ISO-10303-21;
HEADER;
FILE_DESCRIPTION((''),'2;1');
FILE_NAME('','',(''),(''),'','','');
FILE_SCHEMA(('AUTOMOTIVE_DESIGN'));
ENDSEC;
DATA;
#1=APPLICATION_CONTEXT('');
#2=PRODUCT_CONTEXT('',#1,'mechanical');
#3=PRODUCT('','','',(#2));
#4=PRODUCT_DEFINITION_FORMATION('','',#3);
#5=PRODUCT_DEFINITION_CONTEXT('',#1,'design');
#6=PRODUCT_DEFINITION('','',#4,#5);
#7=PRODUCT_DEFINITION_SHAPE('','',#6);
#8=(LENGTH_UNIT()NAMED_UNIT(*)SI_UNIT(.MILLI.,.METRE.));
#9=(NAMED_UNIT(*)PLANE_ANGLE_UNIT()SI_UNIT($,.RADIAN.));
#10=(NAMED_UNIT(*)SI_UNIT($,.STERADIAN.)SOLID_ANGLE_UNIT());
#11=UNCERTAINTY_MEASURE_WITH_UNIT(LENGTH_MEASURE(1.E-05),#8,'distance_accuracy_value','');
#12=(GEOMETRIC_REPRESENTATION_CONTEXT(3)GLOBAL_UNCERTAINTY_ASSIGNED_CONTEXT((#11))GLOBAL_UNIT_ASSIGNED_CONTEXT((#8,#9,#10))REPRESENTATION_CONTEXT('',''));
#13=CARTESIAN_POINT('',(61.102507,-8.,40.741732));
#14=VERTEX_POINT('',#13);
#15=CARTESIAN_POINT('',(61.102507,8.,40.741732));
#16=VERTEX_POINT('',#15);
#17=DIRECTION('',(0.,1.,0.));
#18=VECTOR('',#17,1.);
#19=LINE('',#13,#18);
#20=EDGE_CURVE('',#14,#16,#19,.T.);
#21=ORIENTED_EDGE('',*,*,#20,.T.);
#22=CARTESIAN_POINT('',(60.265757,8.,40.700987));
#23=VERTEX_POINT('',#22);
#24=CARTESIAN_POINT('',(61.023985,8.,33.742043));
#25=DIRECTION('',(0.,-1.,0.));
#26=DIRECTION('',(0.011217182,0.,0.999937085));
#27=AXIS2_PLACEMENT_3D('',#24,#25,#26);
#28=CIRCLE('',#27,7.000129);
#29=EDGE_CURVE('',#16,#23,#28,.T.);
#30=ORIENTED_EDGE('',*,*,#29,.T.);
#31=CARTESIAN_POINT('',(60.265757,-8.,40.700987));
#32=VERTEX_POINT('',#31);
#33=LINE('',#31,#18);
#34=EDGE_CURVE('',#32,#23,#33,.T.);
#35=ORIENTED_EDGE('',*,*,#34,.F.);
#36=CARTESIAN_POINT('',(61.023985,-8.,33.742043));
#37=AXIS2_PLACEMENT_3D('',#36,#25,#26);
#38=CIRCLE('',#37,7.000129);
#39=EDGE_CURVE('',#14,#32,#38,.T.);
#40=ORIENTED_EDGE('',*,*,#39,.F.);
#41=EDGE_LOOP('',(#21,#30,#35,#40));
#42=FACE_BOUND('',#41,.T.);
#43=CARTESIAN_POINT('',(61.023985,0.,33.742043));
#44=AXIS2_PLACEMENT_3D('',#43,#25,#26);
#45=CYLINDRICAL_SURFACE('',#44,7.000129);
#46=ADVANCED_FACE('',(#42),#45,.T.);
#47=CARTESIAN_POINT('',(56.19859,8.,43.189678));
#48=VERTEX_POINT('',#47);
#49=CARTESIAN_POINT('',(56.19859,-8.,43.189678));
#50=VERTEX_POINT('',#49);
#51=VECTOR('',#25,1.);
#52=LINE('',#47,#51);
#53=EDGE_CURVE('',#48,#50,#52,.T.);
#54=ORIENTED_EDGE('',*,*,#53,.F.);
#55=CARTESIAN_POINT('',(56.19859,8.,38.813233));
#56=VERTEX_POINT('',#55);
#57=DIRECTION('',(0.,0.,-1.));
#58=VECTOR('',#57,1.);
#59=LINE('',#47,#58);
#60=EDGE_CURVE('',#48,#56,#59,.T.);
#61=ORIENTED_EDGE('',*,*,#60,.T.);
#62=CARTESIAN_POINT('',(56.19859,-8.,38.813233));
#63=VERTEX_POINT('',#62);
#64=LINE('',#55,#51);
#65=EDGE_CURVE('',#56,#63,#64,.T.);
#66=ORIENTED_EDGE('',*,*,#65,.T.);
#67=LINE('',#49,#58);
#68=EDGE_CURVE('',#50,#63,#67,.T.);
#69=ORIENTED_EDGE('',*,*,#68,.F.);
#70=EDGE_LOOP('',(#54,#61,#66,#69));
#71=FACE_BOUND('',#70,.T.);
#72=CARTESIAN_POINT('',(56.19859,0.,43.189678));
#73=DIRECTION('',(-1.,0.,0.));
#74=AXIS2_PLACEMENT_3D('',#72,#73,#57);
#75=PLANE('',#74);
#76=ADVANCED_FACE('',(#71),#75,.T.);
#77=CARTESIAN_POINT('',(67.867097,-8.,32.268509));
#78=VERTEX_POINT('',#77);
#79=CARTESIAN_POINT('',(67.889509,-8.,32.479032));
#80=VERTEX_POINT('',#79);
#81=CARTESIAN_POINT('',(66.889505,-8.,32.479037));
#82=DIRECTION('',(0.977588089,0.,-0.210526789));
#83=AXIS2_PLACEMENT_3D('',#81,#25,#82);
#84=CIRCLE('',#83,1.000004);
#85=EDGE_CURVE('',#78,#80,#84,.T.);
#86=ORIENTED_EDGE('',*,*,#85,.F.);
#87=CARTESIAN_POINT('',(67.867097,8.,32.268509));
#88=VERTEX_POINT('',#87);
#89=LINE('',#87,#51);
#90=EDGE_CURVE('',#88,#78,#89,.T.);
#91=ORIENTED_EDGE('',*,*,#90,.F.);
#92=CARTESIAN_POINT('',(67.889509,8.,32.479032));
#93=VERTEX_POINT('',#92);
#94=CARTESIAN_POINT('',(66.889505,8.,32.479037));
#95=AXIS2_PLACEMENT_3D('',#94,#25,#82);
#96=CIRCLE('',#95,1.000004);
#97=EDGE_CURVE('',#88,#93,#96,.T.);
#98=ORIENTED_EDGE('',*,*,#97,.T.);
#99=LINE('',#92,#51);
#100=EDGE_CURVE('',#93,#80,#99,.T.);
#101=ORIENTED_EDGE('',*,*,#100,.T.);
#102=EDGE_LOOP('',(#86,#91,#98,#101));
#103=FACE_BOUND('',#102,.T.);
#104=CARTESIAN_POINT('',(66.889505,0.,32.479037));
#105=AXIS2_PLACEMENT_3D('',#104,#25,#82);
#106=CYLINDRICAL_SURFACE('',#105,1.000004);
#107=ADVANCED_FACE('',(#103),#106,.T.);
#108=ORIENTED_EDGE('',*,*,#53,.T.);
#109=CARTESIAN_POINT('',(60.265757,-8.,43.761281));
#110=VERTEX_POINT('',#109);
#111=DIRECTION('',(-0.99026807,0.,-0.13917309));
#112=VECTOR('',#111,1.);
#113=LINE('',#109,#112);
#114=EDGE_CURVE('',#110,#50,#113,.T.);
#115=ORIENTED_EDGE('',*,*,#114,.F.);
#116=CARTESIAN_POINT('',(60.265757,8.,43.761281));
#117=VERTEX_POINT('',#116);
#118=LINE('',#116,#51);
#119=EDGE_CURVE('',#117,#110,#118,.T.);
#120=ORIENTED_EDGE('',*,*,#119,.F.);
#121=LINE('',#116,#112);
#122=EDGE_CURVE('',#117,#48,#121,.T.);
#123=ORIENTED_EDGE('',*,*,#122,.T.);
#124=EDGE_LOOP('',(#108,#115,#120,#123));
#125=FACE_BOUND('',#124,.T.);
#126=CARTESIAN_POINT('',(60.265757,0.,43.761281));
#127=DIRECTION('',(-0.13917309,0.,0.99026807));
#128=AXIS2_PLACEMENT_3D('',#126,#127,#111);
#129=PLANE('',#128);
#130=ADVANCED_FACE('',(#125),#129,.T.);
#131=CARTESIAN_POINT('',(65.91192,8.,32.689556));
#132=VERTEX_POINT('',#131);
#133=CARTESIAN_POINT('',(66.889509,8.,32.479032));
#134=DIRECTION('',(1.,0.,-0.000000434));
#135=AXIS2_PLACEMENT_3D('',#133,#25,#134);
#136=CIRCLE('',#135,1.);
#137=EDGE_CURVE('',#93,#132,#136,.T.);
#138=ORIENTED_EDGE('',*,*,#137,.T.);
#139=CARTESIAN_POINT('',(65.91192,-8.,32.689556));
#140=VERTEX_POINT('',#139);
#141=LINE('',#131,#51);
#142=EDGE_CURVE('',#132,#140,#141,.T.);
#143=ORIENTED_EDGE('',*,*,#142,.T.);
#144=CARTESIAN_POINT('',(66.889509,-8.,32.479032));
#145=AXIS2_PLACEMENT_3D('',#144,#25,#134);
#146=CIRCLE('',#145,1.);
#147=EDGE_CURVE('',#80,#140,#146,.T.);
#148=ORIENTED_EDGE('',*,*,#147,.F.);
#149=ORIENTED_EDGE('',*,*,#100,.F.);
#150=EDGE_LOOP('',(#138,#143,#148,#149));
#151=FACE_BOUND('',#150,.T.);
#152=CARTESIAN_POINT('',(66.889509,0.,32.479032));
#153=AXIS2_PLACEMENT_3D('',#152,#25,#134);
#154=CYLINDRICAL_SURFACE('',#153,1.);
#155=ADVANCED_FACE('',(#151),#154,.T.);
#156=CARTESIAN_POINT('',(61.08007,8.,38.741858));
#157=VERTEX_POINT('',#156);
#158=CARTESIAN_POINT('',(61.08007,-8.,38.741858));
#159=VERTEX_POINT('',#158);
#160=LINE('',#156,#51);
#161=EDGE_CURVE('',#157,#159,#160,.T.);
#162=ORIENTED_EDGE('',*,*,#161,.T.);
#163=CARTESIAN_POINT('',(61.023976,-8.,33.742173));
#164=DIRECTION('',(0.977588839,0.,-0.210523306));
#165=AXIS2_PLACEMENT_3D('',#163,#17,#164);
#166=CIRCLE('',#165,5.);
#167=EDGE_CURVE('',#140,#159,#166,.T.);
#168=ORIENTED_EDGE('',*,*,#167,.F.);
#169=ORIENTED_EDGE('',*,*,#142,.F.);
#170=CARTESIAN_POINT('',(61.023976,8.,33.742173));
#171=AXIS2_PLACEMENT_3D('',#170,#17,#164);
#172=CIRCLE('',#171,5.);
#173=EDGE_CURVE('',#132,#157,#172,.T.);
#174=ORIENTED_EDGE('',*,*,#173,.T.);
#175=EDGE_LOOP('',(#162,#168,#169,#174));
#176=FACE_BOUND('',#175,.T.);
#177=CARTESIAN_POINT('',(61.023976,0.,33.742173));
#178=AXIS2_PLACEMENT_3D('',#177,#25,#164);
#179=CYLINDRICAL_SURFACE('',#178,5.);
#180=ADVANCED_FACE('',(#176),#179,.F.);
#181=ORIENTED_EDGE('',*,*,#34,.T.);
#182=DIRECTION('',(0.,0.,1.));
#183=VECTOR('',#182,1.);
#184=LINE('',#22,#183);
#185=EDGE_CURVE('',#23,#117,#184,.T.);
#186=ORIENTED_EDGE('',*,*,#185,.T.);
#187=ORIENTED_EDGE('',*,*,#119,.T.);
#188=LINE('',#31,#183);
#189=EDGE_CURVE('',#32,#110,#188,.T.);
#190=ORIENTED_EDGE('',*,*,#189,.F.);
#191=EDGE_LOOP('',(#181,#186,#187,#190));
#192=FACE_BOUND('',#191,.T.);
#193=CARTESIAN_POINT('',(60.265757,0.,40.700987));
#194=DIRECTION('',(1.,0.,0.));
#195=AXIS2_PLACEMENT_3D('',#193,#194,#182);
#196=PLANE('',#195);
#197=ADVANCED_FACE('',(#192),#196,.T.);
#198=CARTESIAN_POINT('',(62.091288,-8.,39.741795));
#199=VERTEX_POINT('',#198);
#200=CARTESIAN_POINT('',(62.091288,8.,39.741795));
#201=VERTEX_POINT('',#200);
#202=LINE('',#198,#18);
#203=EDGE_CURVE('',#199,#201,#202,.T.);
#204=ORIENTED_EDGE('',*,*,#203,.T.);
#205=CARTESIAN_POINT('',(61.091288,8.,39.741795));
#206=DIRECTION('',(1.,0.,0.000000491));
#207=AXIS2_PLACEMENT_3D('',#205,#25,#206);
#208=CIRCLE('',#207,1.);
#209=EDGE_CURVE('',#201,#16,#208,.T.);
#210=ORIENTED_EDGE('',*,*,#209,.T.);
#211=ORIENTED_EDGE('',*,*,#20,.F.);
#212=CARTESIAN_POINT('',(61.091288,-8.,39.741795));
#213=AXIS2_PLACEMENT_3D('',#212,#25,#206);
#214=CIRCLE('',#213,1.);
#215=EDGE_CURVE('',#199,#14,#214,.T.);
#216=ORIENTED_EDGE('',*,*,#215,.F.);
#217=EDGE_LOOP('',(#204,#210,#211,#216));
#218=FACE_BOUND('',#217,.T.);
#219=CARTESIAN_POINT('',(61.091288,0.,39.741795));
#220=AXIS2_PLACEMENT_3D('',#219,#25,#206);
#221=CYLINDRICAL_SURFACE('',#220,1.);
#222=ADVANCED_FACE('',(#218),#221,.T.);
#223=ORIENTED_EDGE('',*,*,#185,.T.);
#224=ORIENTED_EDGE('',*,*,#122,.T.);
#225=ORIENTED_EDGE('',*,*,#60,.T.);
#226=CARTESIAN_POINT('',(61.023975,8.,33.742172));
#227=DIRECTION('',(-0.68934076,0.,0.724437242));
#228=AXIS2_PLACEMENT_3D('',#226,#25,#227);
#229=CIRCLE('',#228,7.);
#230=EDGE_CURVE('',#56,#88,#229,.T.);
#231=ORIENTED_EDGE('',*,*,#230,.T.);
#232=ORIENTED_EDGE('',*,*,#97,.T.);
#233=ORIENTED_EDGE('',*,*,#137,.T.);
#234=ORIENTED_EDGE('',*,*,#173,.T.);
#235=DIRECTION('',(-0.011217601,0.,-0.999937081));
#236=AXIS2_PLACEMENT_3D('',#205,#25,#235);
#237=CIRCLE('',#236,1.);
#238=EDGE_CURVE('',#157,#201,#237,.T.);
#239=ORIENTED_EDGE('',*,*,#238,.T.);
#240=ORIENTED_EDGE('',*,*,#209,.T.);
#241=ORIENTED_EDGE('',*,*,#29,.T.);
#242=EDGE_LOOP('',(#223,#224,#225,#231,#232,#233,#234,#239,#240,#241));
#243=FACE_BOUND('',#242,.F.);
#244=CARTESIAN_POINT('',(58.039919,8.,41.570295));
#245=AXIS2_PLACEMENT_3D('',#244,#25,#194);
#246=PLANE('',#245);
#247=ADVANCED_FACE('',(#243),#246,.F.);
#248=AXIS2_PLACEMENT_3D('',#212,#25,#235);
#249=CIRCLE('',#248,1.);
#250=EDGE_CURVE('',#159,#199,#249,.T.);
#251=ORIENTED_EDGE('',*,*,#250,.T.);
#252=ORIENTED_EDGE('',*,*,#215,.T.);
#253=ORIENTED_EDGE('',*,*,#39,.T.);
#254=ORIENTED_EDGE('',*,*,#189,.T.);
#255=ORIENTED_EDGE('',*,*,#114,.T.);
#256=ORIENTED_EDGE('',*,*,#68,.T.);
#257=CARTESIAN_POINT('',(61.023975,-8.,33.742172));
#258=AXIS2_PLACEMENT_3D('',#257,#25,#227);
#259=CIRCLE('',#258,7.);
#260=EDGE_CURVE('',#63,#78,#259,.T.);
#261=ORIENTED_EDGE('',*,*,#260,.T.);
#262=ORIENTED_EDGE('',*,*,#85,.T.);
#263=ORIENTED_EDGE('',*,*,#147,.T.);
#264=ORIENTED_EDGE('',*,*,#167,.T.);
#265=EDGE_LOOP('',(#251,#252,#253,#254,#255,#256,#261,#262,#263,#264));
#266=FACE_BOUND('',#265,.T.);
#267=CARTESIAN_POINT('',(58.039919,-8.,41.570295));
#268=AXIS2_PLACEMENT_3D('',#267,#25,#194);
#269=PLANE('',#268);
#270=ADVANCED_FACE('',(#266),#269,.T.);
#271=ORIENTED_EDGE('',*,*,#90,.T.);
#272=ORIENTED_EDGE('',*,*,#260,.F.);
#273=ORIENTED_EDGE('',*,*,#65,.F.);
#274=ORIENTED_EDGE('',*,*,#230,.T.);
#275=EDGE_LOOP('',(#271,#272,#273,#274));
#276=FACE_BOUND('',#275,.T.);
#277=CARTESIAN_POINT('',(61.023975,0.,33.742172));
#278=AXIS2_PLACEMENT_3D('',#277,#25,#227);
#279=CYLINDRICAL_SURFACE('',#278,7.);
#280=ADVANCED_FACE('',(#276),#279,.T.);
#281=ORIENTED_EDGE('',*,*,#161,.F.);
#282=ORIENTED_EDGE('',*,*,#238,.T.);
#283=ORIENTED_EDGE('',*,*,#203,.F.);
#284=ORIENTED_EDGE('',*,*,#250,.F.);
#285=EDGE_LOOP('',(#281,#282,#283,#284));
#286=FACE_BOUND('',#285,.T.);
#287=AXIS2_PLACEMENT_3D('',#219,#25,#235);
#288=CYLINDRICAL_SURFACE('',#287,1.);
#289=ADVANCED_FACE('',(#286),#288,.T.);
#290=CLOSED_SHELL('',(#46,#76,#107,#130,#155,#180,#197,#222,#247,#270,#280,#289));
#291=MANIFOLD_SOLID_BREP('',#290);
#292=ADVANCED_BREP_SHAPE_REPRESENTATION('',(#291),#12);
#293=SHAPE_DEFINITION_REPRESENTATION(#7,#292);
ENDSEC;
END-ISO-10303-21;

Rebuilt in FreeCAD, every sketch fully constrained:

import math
import FreeCAD as App
import Part
import Sketcher

V = App.Vector

doc = App.newDocument("Part")
body = doc.addObject("PartDesign::Body", "Body")

sketch1 = body.newObject("Sketcher::SketchObject", "Sketch")
sketch1.AttachmentSupport = (doc.getObject("XZ_Plane"), [""])
sketch1.MapMode = "FlatFace"
sketch1.addGeometry(Part.LineSegment(V(60.265757, 40.700987, 0), V(60.265757, 43.761281, 0)), False)
sketch1.addGeometry(Part.LineSegment(V(60.265757, 43.761281, 0), V(56.19859, 43.189678, 0)), False)
sketch1.addGeometry(Part.LineSegment(V(56.19859, 43.189678, 0), V(56.19859, 38.813233, 0)), False)
sketch1.addGeometry(Part.ArcOfCircle(Part.Circle(V(61.023975, 33.742172, 0), V(0, 0, 1), 7), math.radians(133.577947), math.radians(347.846977)), False)
sketch1.addGeometry(Part.ArcOfCircle(Part.Circle(V(66.889505, 32.479037, 0), V(0, 0, 1), 1.000004), math.radians(-12.153225), math.radians(-0.000265)), False)
sketch1.addGeometry(Part.ArcOfCircle(Part.Circle(V(66.889509, 32.479032, 0), V(0, 0, 1), 1), math.radians(-0.000025), math.radians(167.846965)), False)
sketch1.addGeometry(Part.ArcOfCircle(Part.Circle(V(61.023976, 33.742173, 0), V(0, 0, 1), 5), math.radians(89.357193), math.radians(347.846979)), False)
sketch1.addGeometry(Part.ArcOfCircle(Part.Circle(V(61.091288, 39.741795, 0), V(0, 0, 1), 1), math.radians(-90.642735), math.radians(-0.000027)), False)
sketch1.addGeometry(Part.ArcOfCircle(Part.Circle(V(61.091288, 39.741795, 0), V(0, 0, 1), 1), math.radians(0.000028), math.radians(89.357161)), False)
sketch1.addGeometry(Part.ArcOfCircle(Part.Circle(V(61.023985, 33.742043, 0), V(0, 0, 1), 7.000129), math.radians(89.357289), math.radians(96.218268)), False)
sketch1.addConstraint(Sketcher.Constraint("Coincident", 0, 2, 1, 1))
sketch1.addConstraint(Sketcher.Constraint("Coincident", 1, 2, 2, 1))
sketch1.addConstraint(Sketcher.Constraint("Coincident", 2, 2, 3, 1))
sketch1.addConstraint(Sketcher.Constraint("Coincident", 3, 2, 4, 1))
sketch1.addConstraint(Sketcher.Constraint("Coincident", 4, 2, 5, 1))
sketch1.addConstraint(Sketcher.Constraint("Coincident", 5, 2, 6, 2))
sketch1.addConstraint(Sketcher.Constraint("Coincident", 6, 1, 7, 1))
sketch1.addConstraint(Sketcher.Constraint("Coincident", 7, 2, 8, 1))
sketch1.addConstraint(Sketcher.Constraint("Coincident", 8, 2, 9, 1))
sketch1.addConstraint(Sketcher.Constraint("Coincident", 9, 2, 0, 1))
sketch1.addConstraint(Sketcher.Constraint("Vertical", 0))
sketch1.addConstraint(Sketcher.Constraint("Vertical", 2))
sketch1.addConstraint(Sketcher.Constraint("Coincident", 5, 3, 4, 3))
sketch1.addConstraint(Sketcher.Constraint("Coincident", 6, 3, 3, 3))
sketch1.addConstraint(Sketcher.Constraint("Coincident", 8, 3, 7, 3))
sketch1.addConstraint(Sketcher.Constraint("Radius", 3, 7.0))
sketch1.addConstraint(Sketcher.Constraint("Radius", 5, 1.0))
sketch1.addConstraint(Sketcher.Constraint("Radius", 7, 1.0))
sketch1.addConstraint(Sketcher.Constraint("Radius", 9, 7.000129))
sketch1.addConstraint(Sketcher.Constraint("DistanceY", 0, 1, 0, 2, 3.060294))
sketch1.addConstraint(Sketcher.Constraint("DistanceY", 2, 2, 2, 1, 4.376445))
sketch1.addConstraint(Sketcher.Constraint("DistanceX", -1, 1, 5, 3, 66.889509))
sketch1.addConstraint(Sketcher.Constraint("DistanceY", -1, 1, 0, 2, 43.761281))
sketch1.addConstraint(Sketcher.Constraint("DistanceX", -1, 1, 1, 2, 56.19859))
sketch1.addConstraint(Sketcher.Constraint("DistanceY", -1, 1, 3, 2, 32.268509))
sketch1.addConstraint(Sketcher.Constraint("DistanceY", -1, 1, 4, 2, 32.479032))
sketch1.addConstraint(Sketcher.Constraint("DistanceX", -1, 1, 5, 2, 65.91192))
sketch1.addConstraint(Sketcher.Constraint("DistanceX", -1, 1, 6, 1, 61.08007))
sketch1.addConstraint(Sketcher.Constraint("DistanceX", 3, 3, 4, 3, 5.86553))
sketch1.addConstraint(Sketcher.Constraint("DistanceX", 6, 3, 7, 3, 0.067312))
sketch1.addConstraint(Sketcher.Constraint("DistanceY", 9, 3, 3, 3, 0.000129))
sketch1.addConstraint(Sketcher.Constraint("DistanceX", 0, 2, 7, 3, 0.825531))
sketch1.addConstraint(Sketcher.Constraint("DistanceX", 7, 3, 8, 2, 0.011219))
sketch1.addConstraint(Sketcher.Constraint("DistanceY", 7, 2, 9, 2, 0.959192))
pad1 = body.newObject("PartDesign::Pad", "Pad")
pad1.Profile = sketch1
pad1.Type = "TwoLengths"
pad1.Length = 8
pad1.Length2 = 8

doc.recompute()
